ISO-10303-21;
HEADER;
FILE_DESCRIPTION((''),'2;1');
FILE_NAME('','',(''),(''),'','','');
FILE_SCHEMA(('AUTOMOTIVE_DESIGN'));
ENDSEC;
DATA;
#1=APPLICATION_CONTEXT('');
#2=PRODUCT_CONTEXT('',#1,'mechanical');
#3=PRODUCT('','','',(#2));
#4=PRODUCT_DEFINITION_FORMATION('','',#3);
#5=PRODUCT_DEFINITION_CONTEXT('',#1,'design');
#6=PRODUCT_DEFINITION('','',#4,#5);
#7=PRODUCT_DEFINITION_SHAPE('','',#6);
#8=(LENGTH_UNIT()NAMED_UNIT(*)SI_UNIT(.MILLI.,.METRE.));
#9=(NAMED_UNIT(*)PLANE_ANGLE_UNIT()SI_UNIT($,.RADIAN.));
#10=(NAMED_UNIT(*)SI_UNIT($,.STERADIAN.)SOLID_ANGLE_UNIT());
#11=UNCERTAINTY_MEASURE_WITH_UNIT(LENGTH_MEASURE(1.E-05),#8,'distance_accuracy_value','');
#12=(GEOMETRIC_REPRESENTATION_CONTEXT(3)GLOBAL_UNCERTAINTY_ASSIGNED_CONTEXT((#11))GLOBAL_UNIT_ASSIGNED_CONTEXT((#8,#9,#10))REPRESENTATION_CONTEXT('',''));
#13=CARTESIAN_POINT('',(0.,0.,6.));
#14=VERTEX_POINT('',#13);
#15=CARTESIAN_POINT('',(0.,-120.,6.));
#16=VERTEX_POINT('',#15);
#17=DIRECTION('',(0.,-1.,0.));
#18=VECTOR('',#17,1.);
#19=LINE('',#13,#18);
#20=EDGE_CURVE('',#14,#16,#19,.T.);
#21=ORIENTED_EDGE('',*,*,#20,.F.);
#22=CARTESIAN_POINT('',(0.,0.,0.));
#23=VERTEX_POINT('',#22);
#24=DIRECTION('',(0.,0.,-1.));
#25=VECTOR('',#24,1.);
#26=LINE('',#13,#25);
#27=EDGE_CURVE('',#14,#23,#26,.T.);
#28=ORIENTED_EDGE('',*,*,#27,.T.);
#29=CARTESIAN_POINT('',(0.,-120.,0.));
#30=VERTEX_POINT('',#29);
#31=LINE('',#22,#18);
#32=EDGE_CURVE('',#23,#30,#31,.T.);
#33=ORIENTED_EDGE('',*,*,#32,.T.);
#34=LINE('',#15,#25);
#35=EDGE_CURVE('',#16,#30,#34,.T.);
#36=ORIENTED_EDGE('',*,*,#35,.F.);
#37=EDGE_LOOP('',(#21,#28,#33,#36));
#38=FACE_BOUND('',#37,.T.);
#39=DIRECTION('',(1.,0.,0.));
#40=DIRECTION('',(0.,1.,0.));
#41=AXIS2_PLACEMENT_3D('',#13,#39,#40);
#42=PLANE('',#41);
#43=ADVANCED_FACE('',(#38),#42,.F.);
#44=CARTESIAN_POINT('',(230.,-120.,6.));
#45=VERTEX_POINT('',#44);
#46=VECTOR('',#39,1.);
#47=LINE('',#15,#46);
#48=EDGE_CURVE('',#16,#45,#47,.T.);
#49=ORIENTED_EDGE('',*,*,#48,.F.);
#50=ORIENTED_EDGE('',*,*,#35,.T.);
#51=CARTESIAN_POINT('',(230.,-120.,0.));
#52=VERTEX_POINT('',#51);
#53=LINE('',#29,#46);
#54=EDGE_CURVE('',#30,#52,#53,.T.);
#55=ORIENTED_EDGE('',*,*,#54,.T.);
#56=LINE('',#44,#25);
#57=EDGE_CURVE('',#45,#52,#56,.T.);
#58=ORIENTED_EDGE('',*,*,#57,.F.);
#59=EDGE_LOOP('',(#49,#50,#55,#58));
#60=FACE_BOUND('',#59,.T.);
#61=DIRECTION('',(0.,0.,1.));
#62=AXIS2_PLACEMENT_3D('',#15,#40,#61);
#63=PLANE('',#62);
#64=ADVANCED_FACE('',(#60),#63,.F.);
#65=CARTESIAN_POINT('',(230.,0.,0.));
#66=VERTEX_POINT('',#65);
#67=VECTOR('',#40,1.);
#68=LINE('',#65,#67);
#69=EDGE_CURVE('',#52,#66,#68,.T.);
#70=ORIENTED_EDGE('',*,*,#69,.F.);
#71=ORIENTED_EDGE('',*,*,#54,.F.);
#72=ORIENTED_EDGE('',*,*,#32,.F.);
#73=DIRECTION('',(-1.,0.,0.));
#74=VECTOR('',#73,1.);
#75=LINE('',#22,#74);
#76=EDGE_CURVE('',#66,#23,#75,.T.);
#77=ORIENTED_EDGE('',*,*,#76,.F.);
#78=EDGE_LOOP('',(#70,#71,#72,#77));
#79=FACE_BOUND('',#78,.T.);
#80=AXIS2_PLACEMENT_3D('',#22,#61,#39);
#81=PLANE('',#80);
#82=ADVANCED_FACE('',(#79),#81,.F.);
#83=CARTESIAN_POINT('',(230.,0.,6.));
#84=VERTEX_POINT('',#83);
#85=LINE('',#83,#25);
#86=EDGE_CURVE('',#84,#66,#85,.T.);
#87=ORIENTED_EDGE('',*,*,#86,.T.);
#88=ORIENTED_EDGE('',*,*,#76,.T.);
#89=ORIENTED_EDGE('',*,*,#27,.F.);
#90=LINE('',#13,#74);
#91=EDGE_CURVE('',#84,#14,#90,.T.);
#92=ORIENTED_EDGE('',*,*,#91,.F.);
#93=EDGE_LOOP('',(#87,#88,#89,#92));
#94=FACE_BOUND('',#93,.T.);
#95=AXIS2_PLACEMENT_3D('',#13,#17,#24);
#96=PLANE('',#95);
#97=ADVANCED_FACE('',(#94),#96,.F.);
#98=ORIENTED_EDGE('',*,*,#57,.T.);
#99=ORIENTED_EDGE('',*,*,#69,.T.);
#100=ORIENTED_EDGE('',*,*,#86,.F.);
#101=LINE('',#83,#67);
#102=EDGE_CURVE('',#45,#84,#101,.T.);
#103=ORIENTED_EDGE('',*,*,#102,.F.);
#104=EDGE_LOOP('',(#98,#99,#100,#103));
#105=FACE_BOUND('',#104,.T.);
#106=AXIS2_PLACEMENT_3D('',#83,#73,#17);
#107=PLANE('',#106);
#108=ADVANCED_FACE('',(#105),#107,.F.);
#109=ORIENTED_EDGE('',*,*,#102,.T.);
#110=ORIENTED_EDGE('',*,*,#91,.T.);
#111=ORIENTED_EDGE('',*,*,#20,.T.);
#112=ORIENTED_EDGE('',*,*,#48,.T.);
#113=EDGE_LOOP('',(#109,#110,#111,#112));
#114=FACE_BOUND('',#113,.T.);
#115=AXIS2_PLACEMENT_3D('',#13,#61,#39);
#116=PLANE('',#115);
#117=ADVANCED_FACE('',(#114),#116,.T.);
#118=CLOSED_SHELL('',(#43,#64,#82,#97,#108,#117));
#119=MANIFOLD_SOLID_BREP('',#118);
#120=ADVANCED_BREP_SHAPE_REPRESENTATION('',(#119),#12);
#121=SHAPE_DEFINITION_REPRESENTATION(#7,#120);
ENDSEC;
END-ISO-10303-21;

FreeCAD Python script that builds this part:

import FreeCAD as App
import Part
import Sketcher


def add_polygon(sketch, points):
    """Adds a closed chain of lines whose ends are joined by coincident constraints."""
    first, n = sketch.GeometryCount, len(points)
    for a, b in zip(points, points[1:] + points[:1]):
        sketch.addGeometry(Part.LineSegment(App.Vector(*a, 0), App.Vector(*b, 0)), False)
    for i in range(n):
        sketch.addConstraint(Sketcher.Constraint("Coincident", first + i, 2, first + (i + 1) % n, 1))

doc = App.newDocument("Part")
body = doc.addObject("PartDesign::Body", "Body")

# Sketch on XY plane
sketch1 = body.newObject("Sketcher::SketchObject", "Sketch")
sketch1.AttachmentSupport = (doc.getObject("XY_Plane"), [""])
sketch1.MapMode = "FlatFace"
add_polygon(sketch1, [(0, 0), (0, -120), (230, -120), (230, 0)])  # lines 0-3
sketch1.addConstraint([
    Sketcher.Constraint("Vertical", 0),
    Sketcher.Constraint("Horizontal", 1),
    Sketcher.Constraint("Vertical", 2),
    Sketcher.Constraint("Horizontal", 3),
    Sketcher.Constraint("Coincident", 3, 2, -1, 1),
    Sketcher.Constraint("DistanceX", 1, 1, 1, 2, 230.0),
    Sketcher.Constraint("DistanceY", 0, 2, 0, 1, 120.0),
])
pad1 = body.newObject("PartDesign::Pad", "Pad")
pad1.Profile = sketch1
pad1.Length = 6

doc.recompute()
